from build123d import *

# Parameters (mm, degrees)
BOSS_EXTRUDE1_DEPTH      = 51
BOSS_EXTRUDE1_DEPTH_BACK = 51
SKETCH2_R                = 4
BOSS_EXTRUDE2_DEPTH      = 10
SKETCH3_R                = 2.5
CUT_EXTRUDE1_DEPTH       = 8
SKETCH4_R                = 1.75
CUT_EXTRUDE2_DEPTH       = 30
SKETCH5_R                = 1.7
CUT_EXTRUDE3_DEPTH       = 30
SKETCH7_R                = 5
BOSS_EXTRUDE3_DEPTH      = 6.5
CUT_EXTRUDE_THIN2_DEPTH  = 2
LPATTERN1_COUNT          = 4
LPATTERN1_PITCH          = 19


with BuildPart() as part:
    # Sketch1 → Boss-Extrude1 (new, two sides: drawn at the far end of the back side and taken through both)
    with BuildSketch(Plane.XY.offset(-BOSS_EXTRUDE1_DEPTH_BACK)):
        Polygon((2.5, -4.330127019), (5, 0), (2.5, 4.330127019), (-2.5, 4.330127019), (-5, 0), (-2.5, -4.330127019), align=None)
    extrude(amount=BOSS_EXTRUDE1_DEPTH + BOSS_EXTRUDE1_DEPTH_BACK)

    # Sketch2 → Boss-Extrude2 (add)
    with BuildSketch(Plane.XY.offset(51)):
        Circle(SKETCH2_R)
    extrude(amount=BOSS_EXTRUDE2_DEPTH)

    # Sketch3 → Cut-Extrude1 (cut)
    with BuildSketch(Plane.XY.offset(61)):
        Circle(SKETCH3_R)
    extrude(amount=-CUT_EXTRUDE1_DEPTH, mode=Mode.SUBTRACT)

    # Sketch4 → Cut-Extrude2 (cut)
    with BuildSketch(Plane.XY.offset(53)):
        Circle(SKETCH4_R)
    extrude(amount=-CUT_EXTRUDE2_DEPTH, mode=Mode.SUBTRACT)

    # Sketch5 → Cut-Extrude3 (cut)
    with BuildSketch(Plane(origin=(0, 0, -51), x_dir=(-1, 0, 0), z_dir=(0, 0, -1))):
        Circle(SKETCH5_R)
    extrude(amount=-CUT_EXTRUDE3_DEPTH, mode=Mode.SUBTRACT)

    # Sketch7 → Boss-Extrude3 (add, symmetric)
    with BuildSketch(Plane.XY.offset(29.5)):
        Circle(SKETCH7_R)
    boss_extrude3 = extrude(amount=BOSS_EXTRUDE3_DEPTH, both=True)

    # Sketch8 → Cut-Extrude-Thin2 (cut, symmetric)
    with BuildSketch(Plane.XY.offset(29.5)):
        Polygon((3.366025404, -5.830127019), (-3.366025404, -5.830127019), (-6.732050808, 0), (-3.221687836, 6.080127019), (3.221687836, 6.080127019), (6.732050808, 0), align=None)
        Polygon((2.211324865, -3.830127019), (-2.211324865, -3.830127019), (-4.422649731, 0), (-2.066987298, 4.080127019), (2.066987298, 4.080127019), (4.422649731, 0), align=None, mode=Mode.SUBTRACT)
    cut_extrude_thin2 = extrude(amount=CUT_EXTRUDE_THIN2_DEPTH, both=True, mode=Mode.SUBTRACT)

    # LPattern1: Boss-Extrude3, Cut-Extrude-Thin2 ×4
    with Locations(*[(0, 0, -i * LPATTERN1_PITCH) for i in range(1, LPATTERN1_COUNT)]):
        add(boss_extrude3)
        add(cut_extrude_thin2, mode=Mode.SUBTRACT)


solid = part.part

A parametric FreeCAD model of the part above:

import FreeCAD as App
import Part
import Sketcher

V = App.Vector
Q = App.Units.Quantity

doc = App.newDocument("Part")
body = doc.addObject("PartDesign::Body", "Body")

# Sketch on XY plane
sketch1 = body.newObject("Sketcher::SketchObject", "Sketch")
sketch1.AttachmentSupport = (doc.getObject("XY_Plane"), [""])
sketch1.MapMode = "FlatFace"
sketch1.addGeometry([
    Part.LineSegment(V(2, -4, 0), V(5, 0, 0)),  # 0
    Part.LineSegment(V(5, 0, 0), V(2, 4, 0)),  # 1
    Part.LineSegment(V(2, 4, 0), V(-2, 4, 0)),  # 2
    Part.LineSegment(V(-2, 4, 0), V(-5, 0, 0)),  # 3
    Part.LineSegment(V(-5, 0, 0), V(-2, -4, 0)),  # 4
    Part.LineSegment(V(-2, -4, 0), V(2, -4, 0)),  # 5
], False)
sketch1.addConstraint([
    Sketcher.Constraint("Coincident", 0, 2, 1, 1),
    Sketcher.Constraint("Coincident", 1, 2, 2, 1),
    Sketcher.Constraint("Coincident", 2, 2, 3, 1),
    Sketcher.Constraint("Coincident", 3, 2, 4, 1),
    Sketcher.Constraint("Coincident", 4, 2, 5, 1),
    Sketcher.Constraint("Coincident", 5, 2, 0, 1),
    Sketcher.Constraint("Horizontal", 2),
    Sketcher.Constraint("Horizontal", 5),
    Sketcher.Constraint("Symmetric", 0, 2, 3, 2, -1, 1),
    Sketcher.Constraint("Symmetric", 1, 2, 4, 2, -1, 1),
    Sketcher.Constraint("PointOnObject", 0, 2, -1),
    Sketcher.Constraint("Parallel", 0, 3),
    Sketcher.Constraint("Vertical", 2, 2, 4, 2),
    Sketcher.Constraint("DistanceX", 2, 2, 2, 1, Q("5 mm")),
    Sketcher.Constraint("Angle", 0, Q("60 deg")),
    Sketcher.Constraint("Distance", 0, Q("5 mm")),
])
pad1 = body.newObject("PartDesign::Pad", "Pad")
pad1.Profile = sketch1
pad1.Type = "TwoLengths"
pad1.Length = 51
pad1.Length2 = 51

# Sketch on XY plane
sketch2 = body.newObject("Sketcher::SketchObject", "Sketch001")
sketch2.AttachmentSupport = (doc.getObject("XY_Plane"), [""])
sketch2.MapMode = "FlatFace"
sketch2.AttachmentOffset = App.Placement(V(0, 0, 51), App.Rotation())
sketch2.addGeometry(Part.Circle(V(0, 0, 0), V(0, 0, 1), 4), False)
sketch2.addConstraint([
    Sketcher.Constraint("Coincident", 0, 3, -1, 1),
    Sketcher.Constraint("Diameter", 0, Q("8 mm")),
])
pad2 = body.newObject("PartDesign::Pad", "Pad001")
pad2.Profile = sketch2
pad2.Length = 10

# Sketch on XY plane
sketch3 = body.newObject("Sketcher::SketchObject", "Sketch002")
sketch3.AttachmentSupport = (doc.getObject("XY_Plane"), [""])
sketch3.MapMode = "FlatFace"
sketch3.AttachmentOffset = App.Placement(V(0, 0, 61), App.Rotation())
sketch3.addGeometry(Part.Circle(V(0, 0, 0), V(0, 0, 1), 2.5), False)
sketch3.addConstraint([
    Sketcher.Constraint("Coincident", 0, 3, -1, 1),
    Sketcher.Constraint("Diameter", 0, Q("5 mm")),
])
pocket1 = body.newObject("PartDesign::Pocket", "Pocket")
pocket1.Profile = sketch3
pocket1.Length = 8

# Sketch on XY plane
sketch4 = body.newObject("Sketcher::SketchObject", "Sketch003")
sketch4.AttachmentSupport = (doc.getObject("XY_Plane"), [""])
sketch4.MapMode = "FlatFace"
sketch4.AttachmentOffset = App.Placement(V(0, 0, 53), App.Rotation())
sketch4.addGeometry(Part.Circle(V(0, 0, 0), V(0, 0, 1), 1.8), False)
sketch4.addConstraint([
    Sketcher.Constraint("Coincident", 0, 3, -1, 1),
    Sketcher.Constraint("Diameter", 0, Q("3.5 mm")),
])
pocket2 = body.newObject("PartDesign::Pocket", "Pocket001")
pocket2.Profile = sketch4
pocket2.Length = 30

# Sketch on XY plane
sketch5 = body.newObject("Sketcher::SketchObject", "Sketch004")
sketch5.AttachmentSupport = (doc.getObject("XY_Plane"), [""])
sketch5.MapMode = "FlatFace"
sketch5.AttachmentOffset = App.Placement(V(0, 0, -51), App.Rotation())
sketch5.addGeometry(Part.Circle(V(0, 0, 0), V(0, 0, 1), 1.7), False)
sketch5.addConstraint([
    Sketcher.Constraint("Coincident", 0, 3, -1, 1),
    Sketcher.Constraint("Diameter", 0, Q("3.4 mm")),
])
pocket3 = body.newObject("PartDesign::Pocket", "Pocket002")
pocket3.Profile = sketch5
pocket3.Length = 30
pocket3.Reversed = True

# Sketch on XY plane
sketch6 = body.newObject("Sketcher::SketchObject", "Sketch005")
sketch6.AttachmentSupport = (doc.getObject("XY_Plane"), [""])
sketch6.MapMode = "FlatFace"
sketch6.AttachmentOffset = App.Placement(V(0, 0, 29.5), App.Rotation())
sketch6.addGeometry(Part.Circle(V(0, 0, 0), V(0, 0, 1), 5), False)
sketch6.addConstraint([
    Sketcher.Constraint("Coincident", 0, 3, -1, 1),
    Sketcher.Constraint("Diameter", 0, Q("10 mm")),
])
pad3 = body.newObject("PartDesign::Pad", "Pad002")
pad3.Profile = sketch6
pad3.Length = 13
pad3.Midplane = True

# Sketch on XY plane
sketch7 = body.newObject("Sketcher::SketchObject", "Sketch006")
sketch7.AttachmentSupport = (doc.getObject("XY_Plane"), [""])
sketch7.MapMode = "FlatFace"
sketch7.AttachmentOffset = App.Placement(V(0, 0, 29.5), App.Rotation())
sketch7.addGeometry([
    Part.LineSegment(V(-3.4, -5.8, 0), V(3.4, -5.8, 0)),  # 0
    Part.LineSegment(V(3.4, -5.8, 0), V(6.7, 0, 0)),  # 1
    Part.LineSegment(V(6.7, 0, 0), V(3.2, 6.1, 0)),  # 2
    Part.LineSegment(V(3.2, 6.1, 0), V(-3.2, 6.1, 0)),  # 3
    Part.LineSegment(V(-3.2, 6.1, 0), V(-6.7, 0, 0)),  # 4
    Part.LineSegment(V(-6.7, 0, 0), V(-3.4, -5.8, 0)),  # 5
    Part.LineSegment(V(2.2, -3.8, 0), V(-2.2, -3.8, 0)),  # 6
    Part.LineSegment(V(-2.2, -3.8, 0), V(-4.4, 0, 0)),  # 7
    Part.LineSegment(V(-4.4, 0, 0), V(-2.1, 4.1, 0)),  # 8
    Part.LineSegment(V(-2.1, 4.1, 0), V(2.1, 4.1, 0)),  # 9
    Part.LineSegment(V(2.1, 4.1, 0), V(4.4, 0, 0)),  # 10
    Part.LineSegment(V(4.4, 0, 0), V(2.2, -3.8, 0)),  # 11
], False)
sketch7.addConstraint([
    Sketcher.Constraint("Coincident", 0, 2, 1, 1),
    Sketcher.Constraint("Coincident", 1, 2, 2, 1),
    Sketcher.Constraint("Coincident", 2, 2, 3, 1),
    Sketcher.Constraint("Coincident", 3, 2, 4, 1),
    Sketcher.Constraint("Coincident", 4, 2, 5, 1),
    Sketcher.Constraint("Coincident", 5, 2, 0, 1),
    Sketcher.Constraint("Coincident", 6, 2, 7, 1),
    Sketcher.Constraint("Coincident", 7, 2, 8, 1),
    Sketcher.Constraint("Coincident", 8, 2, 9, 1),
    Sketcher.Constraint("Coincident", 9, 2, 10, 1),
    Sketcher.Constraint("Coincident", 10, 2, 11, 1),
    Sketcher.Constraint("Coincident", 11, 2, 6, 1),
    Sketcher.Constraint("Horizontal", 0),
    Sketcher.Constraint("Horizontal", 3),
    Sketcher.Constraint("Horizontal", 6),
    Sketcher.Constraint("Horizontal", 9),
    Sketcher.Constraint("Symmetric", 1, 2, 4, 2, -1, 1),
    Sketcher.Constraint("Symmetric", 7, 2, 10, 2, -1, 1),
    Sketcher.Constraint("PointOnObject", 1, 2, -1),
    Sketcher.Constraint("PointOnObject", 7, 2, -1),
    Sketcher.Constraint("Parallel", 1, 4),
    Sketcher.Constraint("Parallel", 2, 5),
    Sketcher.Constraint("Parallel", 5, 7),
    Sketcher.Constraint("Parallel", 4, 8),
    Sketcher.Constraint("Parallel", 7, 10),
    Sketcher.Constraint("Parallel", 8, 11),
    Sketcher.Constraint("Equal", 2, 4),
    Sketcher.Constraint("Angle", 1, Q("60 deg")),
    Sketcher.Constraint("DistanceY", 5, 2, 6, 2, Q("2 mm")),
    Sketcher.Constraint("DistanceY", 8, 2, 3, 2, Q("2 mm")),
    Sketcher.Constraint("DistanceX", 0, 1, 0, 2, Q("6.732051 mm")),
    Sketcher.Constraint("DistanceX", 6, 2, 6, 1, Q("4.42265 mm")),
    Sketcher.Constraint("DistanceX", 4, 2, 1, 2, Q("13.464102 mm")),
    Sketcher.Constraint("DistanceX", 3, 2, 3, 1, Q("6.443376 mm")),
])
pocket4 = body.newObject("PartDesign::Pocket", "Pocket003")
pocket4.Profile = sketch7
pocket4.Length = 4
pocket4.Midplane = True
doc.recompute()

linearpattern = body.newObject("PartDesign::LinearPattern", "LinearPattern")
linearpattern.Originals = [pad3, pocket4]
linearpattern.Direction = (doc.getObject("Z_Axis"), [""])
linearpattern.Mode = "offset"
linearpattern.Offset = 19
linearpattern.Occurrences = 4
linearpattern.Reversed = True
body.Tip = linearpattern

doc.recompute()
